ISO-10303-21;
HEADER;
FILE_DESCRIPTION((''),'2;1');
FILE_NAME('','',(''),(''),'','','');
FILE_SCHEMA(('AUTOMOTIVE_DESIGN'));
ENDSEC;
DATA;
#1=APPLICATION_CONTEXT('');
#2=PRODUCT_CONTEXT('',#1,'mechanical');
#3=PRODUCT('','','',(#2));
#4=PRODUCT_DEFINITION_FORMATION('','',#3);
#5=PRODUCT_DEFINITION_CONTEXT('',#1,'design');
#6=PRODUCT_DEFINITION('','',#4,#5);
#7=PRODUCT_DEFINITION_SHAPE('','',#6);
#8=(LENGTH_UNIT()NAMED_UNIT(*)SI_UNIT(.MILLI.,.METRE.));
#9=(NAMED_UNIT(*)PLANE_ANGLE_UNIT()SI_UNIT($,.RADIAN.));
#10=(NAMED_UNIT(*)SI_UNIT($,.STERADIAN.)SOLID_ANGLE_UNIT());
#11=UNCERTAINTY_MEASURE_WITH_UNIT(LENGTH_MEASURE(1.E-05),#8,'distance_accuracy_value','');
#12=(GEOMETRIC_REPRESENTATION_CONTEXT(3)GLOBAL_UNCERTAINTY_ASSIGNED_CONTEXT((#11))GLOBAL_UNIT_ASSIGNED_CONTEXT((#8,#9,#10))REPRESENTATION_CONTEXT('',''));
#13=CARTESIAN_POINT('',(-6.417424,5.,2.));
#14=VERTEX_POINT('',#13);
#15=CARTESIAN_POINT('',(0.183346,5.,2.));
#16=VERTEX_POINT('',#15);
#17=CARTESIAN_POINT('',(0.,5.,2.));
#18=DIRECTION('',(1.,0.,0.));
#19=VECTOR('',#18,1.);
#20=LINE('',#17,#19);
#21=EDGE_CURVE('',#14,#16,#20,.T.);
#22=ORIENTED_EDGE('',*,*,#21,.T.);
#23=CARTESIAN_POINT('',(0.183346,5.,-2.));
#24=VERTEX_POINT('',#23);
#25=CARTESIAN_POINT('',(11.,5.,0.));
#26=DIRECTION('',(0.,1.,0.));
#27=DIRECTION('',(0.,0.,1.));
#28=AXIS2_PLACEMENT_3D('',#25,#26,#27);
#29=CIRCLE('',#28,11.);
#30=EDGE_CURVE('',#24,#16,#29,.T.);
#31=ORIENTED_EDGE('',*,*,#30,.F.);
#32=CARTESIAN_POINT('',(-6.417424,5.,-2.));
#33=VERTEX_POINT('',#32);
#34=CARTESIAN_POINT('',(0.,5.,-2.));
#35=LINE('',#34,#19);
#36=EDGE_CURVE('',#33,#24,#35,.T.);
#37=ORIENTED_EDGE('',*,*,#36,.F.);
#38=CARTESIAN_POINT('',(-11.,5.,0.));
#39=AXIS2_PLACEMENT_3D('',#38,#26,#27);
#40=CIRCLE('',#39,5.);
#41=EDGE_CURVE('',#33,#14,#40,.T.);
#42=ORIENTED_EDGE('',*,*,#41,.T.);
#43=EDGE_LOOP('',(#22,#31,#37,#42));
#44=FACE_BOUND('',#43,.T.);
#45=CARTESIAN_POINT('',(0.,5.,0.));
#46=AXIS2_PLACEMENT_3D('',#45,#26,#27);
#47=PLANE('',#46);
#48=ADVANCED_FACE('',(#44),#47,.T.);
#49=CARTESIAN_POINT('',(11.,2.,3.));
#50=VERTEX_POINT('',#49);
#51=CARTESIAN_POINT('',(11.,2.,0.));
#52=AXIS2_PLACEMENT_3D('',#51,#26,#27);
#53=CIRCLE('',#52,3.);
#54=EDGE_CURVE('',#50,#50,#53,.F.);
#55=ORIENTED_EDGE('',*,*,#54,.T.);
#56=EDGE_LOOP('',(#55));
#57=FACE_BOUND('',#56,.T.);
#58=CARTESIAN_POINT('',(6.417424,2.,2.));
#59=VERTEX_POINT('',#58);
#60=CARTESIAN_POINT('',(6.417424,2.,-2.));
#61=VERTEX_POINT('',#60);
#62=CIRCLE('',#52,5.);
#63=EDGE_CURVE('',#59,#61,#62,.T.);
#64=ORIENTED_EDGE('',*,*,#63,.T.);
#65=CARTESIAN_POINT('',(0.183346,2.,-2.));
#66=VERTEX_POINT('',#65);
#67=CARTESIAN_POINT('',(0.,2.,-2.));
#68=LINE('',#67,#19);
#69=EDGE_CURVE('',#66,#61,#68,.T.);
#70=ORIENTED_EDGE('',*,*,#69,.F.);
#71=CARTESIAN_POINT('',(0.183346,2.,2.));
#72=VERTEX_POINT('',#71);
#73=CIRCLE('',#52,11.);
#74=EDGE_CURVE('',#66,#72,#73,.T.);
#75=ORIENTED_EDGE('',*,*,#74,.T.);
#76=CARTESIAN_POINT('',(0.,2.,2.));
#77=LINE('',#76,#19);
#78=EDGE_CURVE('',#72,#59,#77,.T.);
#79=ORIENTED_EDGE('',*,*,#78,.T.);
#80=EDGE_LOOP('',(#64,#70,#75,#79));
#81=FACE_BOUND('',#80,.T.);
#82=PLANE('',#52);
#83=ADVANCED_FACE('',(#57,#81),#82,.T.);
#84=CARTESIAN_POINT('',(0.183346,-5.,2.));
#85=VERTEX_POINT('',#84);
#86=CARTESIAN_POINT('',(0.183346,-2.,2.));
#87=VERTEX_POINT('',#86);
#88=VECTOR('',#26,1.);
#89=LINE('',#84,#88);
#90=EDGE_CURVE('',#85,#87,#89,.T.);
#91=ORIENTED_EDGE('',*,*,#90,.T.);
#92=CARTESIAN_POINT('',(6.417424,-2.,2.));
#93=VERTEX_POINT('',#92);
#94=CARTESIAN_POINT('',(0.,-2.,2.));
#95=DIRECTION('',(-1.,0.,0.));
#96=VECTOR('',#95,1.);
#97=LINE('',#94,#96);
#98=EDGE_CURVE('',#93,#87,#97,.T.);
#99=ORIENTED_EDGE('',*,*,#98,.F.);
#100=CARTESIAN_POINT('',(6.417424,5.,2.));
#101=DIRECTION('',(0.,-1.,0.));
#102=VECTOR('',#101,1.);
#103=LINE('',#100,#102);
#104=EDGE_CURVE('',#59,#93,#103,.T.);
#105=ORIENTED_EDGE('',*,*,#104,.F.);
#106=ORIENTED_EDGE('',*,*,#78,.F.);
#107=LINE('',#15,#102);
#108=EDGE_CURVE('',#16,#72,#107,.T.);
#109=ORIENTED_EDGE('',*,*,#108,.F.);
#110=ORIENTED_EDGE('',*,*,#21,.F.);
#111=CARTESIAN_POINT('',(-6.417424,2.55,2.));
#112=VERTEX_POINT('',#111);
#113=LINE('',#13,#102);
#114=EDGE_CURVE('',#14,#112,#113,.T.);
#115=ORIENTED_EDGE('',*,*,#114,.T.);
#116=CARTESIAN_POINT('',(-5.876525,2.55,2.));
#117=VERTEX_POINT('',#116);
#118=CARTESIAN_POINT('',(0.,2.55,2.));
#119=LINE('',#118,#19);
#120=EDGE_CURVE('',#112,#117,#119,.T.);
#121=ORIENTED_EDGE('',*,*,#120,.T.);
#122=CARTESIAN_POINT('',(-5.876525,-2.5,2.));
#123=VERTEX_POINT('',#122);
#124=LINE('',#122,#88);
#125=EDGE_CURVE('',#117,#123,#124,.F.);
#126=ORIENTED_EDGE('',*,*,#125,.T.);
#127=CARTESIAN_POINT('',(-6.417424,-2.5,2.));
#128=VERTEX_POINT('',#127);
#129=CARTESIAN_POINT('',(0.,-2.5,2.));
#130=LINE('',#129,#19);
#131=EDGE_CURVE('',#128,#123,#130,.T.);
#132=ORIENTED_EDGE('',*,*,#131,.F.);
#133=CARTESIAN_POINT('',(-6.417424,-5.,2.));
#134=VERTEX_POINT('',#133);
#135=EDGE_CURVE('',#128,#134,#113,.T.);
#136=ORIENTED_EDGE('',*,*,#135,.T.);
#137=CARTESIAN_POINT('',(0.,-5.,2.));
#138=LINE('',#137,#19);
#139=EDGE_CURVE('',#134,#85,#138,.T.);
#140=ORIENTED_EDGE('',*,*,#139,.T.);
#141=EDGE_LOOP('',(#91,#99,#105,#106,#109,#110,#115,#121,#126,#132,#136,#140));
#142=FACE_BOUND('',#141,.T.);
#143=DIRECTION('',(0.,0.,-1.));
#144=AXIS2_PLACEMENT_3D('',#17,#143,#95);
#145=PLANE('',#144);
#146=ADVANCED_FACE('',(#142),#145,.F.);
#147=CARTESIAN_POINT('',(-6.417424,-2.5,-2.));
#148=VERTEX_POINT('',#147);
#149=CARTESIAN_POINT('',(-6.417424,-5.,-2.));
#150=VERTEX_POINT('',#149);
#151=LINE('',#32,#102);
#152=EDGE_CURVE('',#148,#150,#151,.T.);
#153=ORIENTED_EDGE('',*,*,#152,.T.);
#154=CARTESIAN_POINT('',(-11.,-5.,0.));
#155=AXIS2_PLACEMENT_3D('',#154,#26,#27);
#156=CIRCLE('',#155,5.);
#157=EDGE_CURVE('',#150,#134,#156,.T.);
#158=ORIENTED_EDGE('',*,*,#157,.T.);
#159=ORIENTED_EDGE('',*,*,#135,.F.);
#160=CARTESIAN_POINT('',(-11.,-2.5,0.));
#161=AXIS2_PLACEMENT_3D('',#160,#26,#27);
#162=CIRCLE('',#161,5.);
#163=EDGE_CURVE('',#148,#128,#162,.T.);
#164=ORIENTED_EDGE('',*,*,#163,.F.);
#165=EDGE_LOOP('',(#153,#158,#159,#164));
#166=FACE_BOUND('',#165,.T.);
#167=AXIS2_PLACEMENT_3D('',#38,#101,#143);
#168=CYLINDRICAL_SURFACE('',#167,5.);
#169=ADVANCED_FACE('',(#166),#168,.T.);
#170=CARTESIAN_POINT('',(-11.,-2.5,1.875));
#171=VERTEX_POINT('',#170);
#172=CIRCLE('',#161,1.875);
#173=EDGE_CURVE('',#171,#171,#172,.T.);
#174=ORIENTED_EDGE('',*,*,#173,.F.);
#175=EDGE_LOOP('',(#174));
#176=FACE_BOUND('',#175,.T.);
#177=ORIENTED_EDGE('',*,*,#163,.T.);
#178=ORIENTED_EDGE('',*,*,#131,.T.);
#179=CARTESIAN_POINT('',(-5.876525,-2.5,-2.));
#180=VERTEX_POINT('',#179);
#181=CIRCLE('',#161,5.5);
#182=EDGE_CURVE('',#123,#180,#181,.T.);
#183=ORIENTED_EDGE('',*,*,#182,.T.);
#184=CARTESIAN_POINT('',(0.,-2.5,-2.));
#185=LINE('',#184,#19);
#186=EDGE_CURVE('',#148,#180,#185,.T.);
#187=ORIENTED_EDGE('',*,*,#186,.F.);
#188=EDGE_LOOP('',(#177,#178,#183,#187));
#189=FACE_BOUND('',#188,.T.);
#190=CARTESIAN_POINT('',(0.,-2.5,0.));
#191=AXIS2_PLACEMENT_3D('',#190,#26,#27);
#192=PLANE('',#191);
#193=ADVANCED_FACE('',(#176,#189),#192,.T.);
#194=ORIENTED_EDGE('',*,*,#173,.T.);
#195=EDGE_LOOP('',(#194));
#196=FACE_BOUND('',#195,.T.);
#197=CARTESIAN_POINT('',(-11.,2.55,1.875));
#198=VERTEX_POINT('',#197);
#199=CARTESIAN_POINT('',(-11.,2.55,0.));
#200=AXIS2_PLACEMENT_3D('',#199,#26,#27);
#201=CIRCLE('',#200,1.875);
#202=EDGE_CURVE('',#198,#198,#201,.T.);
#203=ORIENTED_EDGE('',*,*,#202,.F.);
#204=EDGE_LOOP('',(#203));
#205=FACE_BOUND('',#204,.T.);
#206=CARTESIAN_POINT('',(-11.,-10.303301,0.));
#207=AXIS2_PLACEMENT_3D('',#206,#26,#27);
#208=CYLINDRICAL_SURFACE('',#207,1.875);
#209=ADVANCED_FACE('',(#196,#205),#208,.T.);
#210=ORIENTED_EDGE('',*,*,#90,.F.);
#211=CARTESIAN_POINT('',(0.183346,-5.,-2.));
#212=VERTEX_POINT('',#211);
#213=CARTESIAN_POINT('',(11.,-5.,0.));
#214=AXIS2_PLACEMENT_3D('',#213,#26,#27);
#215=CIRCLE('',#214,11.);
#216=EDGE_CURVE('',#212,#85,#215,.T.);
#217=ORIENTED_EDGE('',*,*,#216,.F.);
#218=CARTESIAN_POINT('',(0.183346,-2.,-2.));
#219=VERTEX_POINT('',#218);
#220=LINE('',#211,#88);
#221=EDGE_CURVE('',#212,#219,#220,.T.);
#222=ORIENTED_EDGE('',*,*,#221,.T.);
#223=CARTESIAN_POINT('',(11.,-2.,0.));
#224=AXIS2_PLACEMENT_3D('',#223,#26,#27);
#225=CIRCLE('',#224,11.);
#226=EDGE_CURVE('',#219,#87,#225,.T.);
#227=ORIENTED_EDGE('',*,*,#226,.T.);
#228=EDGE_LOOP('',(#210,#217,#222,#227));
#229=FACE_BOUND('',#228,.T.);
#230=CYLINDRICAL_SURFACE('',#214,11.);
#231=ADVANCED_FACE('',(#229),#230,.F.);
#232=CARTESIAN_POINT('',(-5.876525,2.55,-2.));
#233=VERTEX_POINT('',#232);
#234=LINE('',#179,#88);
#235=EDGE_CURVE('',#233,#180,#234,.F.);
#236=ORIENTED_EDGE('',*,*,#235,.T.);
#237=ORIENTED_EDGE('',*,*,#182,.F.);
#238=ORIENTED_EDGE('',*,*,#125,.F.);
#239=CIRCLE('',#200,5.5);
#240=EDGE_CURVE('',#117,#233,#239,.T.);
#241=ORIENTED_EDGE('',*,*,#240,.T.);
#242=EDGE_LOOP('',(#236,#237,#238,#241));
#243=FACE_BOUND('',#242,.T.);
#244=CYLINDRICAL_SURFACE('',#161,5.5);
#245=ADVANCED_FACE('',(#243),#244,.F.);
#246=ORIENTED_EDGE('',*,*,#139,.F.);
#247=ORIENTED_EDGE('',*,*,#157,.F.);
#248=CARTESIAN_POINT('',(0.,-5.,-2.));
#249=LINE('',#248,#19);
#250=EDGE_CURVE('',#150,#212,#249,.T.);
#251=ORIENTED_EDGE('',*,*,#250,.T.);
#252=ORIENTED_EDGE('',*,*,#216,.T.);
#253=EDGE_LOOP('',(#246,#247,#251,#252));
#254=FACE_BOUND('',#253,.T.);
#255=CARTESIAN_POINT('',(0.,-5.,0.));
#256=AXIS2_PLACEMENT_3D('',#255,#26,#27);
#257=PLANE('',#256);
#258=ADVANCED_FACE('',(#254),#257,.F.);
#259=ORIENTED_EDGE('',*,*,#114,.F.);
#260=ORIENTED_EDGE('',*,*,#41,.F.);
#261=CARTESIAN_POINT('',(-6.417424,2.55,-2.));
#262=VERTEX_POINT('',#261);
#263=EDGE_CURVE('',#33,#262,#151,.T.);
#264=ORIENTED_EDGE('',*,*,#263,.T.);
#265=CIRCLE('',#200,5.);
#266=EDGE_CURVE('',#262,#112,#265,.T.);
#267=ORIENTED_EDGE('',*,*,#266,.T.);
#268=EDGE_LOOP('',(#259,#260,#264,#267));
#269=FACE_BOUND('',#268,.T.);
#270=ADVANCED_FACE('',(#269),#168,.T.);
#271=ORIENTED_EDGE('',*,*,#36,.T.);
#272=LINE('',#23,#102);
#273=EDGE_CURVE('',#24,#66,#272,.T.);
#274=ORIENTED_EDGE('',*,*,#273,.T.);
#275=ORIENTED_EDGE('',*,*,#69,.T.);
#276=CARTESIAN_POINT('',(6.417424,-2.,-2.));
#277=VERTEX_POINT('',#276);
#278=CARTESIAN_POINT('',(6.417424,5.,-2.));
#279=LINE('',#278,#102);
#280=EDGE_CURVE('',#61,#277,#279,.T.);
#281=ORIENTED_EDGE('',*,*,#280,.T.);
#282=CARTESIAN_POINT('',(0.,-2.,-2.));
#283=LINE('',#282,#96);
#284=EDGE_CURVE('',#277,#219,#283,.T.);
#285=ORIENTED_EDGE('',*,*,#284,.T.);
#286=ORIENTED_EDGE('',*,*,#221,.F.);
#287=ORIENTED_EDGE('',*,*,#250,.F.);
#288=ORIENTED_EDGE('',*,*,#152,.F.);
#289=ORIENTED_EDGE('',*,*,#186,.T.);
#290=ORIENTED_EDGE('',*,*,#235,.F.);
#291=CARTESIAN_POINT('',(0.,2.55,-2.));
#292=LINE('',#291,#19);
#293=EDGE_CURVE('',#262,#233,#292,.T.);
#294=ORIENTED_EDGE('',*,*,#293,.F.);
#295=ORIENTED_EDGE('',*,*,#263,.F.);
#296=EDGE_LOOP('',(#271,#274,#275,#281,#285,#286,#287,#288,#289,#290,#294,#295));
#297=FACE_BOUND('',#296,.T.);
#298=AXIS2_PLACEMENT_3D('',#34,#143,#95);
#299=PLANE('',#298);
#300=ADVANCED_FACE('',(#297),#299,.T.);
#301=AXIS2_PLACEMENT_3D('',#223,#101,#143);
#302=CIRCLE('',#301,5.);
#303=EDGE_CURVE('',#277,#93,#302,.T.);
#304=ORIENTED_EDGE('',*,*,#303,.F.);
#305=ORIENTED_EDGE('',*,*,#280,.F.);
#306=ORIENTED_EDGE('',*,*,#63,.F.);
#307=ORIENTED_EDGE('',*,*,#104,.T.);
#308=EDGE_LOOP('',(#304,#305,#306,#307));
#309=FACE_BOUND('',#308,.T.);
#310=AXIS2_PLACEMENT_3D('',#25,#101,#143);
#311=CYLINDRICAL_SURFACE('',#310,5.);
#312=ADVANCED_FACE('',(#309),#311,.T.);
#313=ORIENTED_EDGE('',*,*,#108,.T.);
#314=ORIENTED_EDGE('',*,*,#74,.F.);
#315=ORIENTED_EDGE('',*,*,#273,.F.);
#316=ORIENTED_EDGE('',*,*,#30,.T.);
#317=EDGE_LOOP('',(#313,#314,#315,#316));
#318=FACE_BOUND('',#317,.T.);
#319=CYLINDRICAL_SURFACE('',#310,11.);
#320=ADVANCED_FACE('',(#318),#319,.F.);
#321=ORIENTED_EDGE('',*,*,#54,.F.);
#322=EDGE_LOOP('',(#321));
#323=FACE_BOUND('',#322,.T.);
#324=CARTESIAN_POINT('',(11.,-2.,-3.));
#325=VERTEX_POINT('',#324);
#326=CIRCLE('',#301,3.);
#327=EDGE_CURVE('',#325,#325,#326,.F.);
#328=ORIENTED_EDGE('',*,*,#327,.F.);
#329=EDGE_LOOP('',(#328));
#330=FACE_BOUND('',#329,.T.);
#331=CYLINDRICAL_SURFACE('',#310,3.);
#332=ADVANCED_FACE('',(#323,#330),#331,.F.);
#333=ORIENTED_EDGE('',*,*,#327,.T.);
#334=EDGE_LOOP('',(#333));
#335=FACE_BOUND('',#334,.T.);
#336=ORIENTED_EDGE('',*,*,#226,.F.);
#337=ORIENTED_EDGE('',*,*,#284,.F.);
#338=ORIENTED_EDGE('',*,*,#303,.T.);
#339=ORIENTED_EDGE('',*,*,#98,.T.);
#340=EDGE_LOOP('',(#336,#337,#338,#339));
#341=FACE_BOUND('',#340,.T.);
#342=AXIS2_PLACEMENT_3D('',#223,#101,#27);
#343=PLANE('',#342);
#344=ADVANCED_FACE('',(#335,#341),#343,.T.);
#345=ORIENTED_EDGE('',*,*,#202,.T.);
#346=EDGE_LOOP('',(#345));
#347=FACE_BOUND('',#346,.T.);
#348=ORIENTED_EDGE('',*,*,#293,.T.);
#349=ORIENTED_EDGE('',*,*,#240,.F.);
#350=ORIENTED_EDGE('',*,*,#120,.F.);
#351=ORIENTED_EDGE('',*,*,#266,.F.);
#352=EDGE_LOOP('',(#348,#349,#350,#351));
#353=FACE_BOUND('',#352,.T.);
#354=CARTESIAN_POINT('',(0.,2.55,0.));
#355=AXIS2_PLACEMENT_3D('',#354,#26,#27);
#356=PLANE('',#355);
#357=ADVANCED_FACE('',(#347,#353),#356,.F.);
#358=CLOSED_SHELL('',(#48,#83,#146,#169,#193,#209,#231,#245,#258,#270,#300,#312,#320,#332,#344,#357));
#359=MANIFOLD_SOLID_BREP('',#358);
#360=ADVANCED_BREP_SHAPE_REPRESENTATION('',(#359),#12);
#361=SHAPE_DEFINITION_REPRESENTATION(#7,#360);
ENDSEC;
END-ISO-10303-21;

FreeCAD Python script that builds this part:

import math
import FreeCAD as App
import Part
import Sketcher

doc = App.newDocument("Part")
body = doc.addObject("PartDesign::Body", "Body")

# Sketch on XZ plane
sketch1 = body.newObject("Sketcher::SketchObject", "Sketch")
sketch1.AttachmentSupport = (doc.getObject("XZ_Plane"), [""])
sketch1.MapMode = "FlatFace"
sketch1.addGeometry([
    Part.ArcOfCircle(Part.Circle(App.Vector(-11, 0, 0), App.Vector(0, 0, 1), 5), math.radians(23.578178), math.radians(336.421822)),  # 0
    Part.LineSegment(App.Vector(-6.417424, 2, 0), App.Vector(6.417424, 2, 0)),  # 1
    Part.ArcOfCircle(Part.Circle(App.Vector(11, 0, 0), App.Vector(0, 0, 1), 5), math.radians(-156.421822), math.radians(156.421822)),  # 2
    Part.LineSegment(App.Vector(6.417424, -2, 0), App.Vector(-6.417424, -2, 0)),  # 3
    Part.Circle(App.Vector(-11, 0, 0), App.Vector(0, 0, 1), 1.875),  # 4
    Part.Circle(App.Vector(11, 0, 0), App.Vector(0, 0, 1), 3),  # 5
], False)
sketch1.addConstraint([
    Sketcher.Constraint("Coincident", 0, 1, 1, 1),
    Sketcher.Constraint("Coincident", 1, 2, 2, 2),
    Sketcher.Constraint("Coincident", 2, 1, 3, 1),
    Sketcher.Constraint("Coincident", 3, 2, 0, 2),
    Sketcher.Constraint("Horizontal", 1),
    Sketcher.Constraint("Horizontal", 3),
    Sketcher.Constraint("Coincident", 4, 3, 0, 3),
    Sketcher.Constraint("Coincident", 5, 3, 2, 3),
    Sketcher.Constraint("Equal", 0, 2),
    Sketcher.Constraint("Symmetric", 0, 3, 2, 3, -1, 1),
    Sketcher.Constraint("Symmetric", 1, 2, 2, 1, -1),
    Sketcher.Constraint("Diameter", 5, 6.0),
    Sketcher.Constraint("Radius", 0, 5.0),
    Sketcher.Constraint("Diameter", 4, 3.75),
    Sketcher.Constraint("DistanceX", 0, 3, -1, 1, 11.0),
    Sketcher.Constraint("DistanceY", -1, 1, 0, 1, 2.0),
])
pad1 = body.newObject("PartDesign::Pad", "Pad")
pad1.Profile = sketch1
pad1.Length = 10
pad1.Midplane = True

# Sketch on XZ plane
sketch2 = body.newObject("Sketcher::SketchObject", "Sketch001")
sketch2.AttachmentSupport = (doc.getObject("XZ_Plane"), [""])
sketch2.MapMode = "FlatFace"
sketch2.AttachmentOffset = App.Placement(App.Vector(0, 0, -2), App.Rotation())
sketch2.addGeometry(Part.Circle(App.Vector(11, 0, 0), App.Vector(0, 0, 1), 11), False)
sketch2.addConstraint([
    Sketcher.Constraint("PointOnObject", 0, 3, -1),
    Sketcher.Constraint("Diameter", 0, 22.0),
    Sketcher.Constraint("DistanceX", -1, 1, 0, 3, 11.0),
])
pocket1 = body.newObject("PartDesign::Pocket", "Pocket")
pocket1.Profile = sketch2
pocket1.Type = "ThroughAll"
doc.recompute()

mirrored = body.newObject("PartDesign::Mirrored", "Mirrored")
mirrored.Originals = [pocket1]
mirrored.MirrorPlane = (doc.getObject("XZ_Plane"), [""])
body.Tip = mirrored

# Sketch on XZ plane
sketch3 = body.newObject("Sketcher::SketchObject", "Sketch002")
sketch3.AttachmentSupport = (doc.getObject("XZ_Plane"), [""])
sketch3.MapMode = "FlatFace"
sketch3.addGeometry(Part.Circle(App.Vector(-11, 0, 0), App.Vector(0, 0, 1), 5.5), False)
sketch3.addConstraint([
    Sketcher.Constraint("PointOnObject", 0, 3, -1),
    Sketcher.Constraint("Diameter", 0, 11.0),
    Sketcher.Constraint("DistanceX", 0, 3, -1, 1, 11.0),
])
pocket2 = body.newObject("PartDesign::Pocket", "Pocket001")
pocket2.Profile = sketch3
pocket2.Type = "TwoLengths"
pocket2.Length = 2.55
pocket2.Length2 = 2.5

# Sketch on XZ plane
sketch4 = body.newObject("Sketcher::SketchObject", "Sketch003")
sketch4.AttachmentSupport = (doc.getObject("XZ_Plane"), [""])
sketch4.MapMode = "FlatFace"
sketch4.AttachmentOffset = App.Placement(App.Vector(0, 0, -5), App.Rotation())
sketch4.addGeometry(Part.Circle(App.Vector(-11, 0, 0), App.Vector(0, 0, 1), 1.875), False)
sketch4.addConstraint([
    Sketcher.Constraint("PointOnObject", 0, 3, -1),
    Sketcher.Constraint("Diameter", 0, 3.75),
    Sketcher.Constraint("DistanceX", 0, 3, -1, 1, 11.0),
])
pad2 = body.newObject("PartDesign::Pad", "Pad001")
pad2.Profile = sketch4
pad2.Length = 10

doc.recompute()
